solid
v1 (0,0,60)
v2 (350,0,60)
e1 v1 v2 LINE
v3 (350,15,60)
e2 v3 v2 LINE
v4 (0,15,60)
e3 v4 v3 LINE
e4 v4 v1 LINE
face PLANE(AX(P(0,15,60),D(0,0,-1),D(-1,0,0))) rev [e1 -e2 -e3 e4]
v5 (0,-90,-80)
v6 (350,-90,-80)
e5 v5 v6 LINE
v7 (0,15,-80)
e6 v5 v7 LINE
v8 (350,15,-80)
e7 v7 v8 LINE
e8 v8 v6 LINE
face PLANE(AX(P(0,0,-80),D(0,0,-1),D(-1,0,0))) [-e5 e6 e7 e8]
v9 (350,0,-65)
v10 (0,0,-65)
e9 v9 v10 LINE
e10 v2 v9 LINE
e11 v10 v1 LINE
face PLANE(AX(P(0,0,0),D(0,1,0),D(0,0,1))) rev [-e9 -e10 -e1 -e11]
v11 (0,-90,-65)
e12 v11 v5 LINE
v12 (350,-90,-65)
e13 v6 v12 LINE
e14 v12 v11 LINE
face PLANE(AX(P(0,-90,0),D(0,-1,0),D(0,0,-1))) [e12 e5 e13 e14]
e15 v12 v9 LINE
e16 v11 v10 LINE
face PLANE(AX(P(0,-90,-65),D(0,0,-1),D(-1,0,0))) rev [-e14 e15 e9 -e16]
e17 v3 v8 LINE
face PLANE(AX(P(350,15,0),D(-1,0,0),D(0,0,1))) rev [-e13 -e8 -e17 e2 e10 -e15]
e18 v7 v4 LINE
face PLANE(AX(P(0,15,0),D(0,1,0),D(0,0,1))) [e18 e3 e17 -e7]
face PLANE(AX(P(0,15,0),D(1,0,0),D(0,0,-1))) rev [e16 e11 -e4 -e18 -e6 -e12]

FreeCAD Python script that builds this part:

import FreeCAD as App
import Part
import Sketcher

V = App.Vector
Q = App.Units.Quantity

doc = App.newDocument("Part")
body = doc.addObject("PartDesign::Body", "Body")

sketch1 = body.newObject("Sketcher::SketchObject", "Sketch")
sketch1.AttachmentSupport = (doc.getObject("XZ_Plane"), [""])
sketch1.MapMode = "FlatFace"
sketch1.addGeometry(Part.LineSegment(V(0, 0, 0), V(0, 60, 0)), False)
sketch1.addGeometry(Part.LineSegment(V(0, 60, 0), V(350, 60, 0)), False)
sketch1.addGeometry(Part.LineSegment(V(350, 60, 0), V(350, 0, 0)), False)
sketch1.addGeometry(Part.LineSegment(V(350, 0, 0), V(0, 0, 0)), False)
sketch1.addConstraint(Sketcher.Constraint("Coincident", 0, 2, 1, 1))
sketch1.addConstraint(Sketcher.Constraint("Coincident", 1, 2, 2, 1))
sketch1.addConstraint(Sketcher.Constraint("Coincident", 2, 2, 3, 1))
sketch1.addConstraint(Sketcher.Constraint("Coincident", 3, 2, 0, 1))
sketch1.addConstraint(Sketcher.Constraint("Vertical", 0))
sketch1.addConstraint(Sketcher.Constraint("Horizontal", 1))
sketch1.addConstraint(Sketcher.Constraint("Vertical", 2))
sketch1.addConstraint(Sketcher.Constraint("Horizontal", 3))
sketch1.addConstraint(Sketcher.Constraint("Coincident", 3, 2, -1, 1))
sketch1.addConstraint(Sketcher.Constraint("DistanceX", 1, 1, 1, 2, Q("350 mm")))
sketch1.addConstraint(Sketcher.Constraint("DistanceY", 0, 1, 0, 2, Q("60 mm")))
pad1 = body.newObject("PartDesign::Pad", "Pad")
pad1.Profile = sketch1
pad1.Length = 15
pad1.Reversed = True

sketch2 = body.newObject("Sketcher::SketchObject", "Sketch001")
sketch2.AttachmentSupport = (doc.getObject("XY_Plane"), [""])
sketch2.MapMode = "FlatFace"
sketch2.addGeometry(Part.LineSegment(V(350, 15, 0), V(350, 0, 0)), False)
sketch2.addGeometry(Part.LineSegment(V(350, 0, 0), V(0, 0, 0)), False)
sketch2.addGeometry(Part.LineSegment(V(0, 0, 0), V(0, 15, 0)), False)
sketch2.addGeometry(Part.LineSegment(V(0, 15, 0), V(350, 15, 0)), False)
sketch2.addConstraint(Sketcher.Constraint("Coincident", 0, 2, 1, 1))
sketch2.addConstraint(Sketcher.Constraint("Coincident", 1, 2, 2, 1))
sketch2.addConstraint(Sketcher.Constraint("Coincident", 2, 2, 3, 1))
sketch2.addConstraint(Sketcher.Constraint("Coincident", 3, 2, 0, 1))
sketch2.addConstraint(Sketcher.Constraint("Vertical", 0))
sketch2.addConstraint(Sketcher.Constraint("Horizontal", 1))
sketch2.addConstraint(Sketcher.Constraint("Vertical", 2))
sketch2.addConstraint(Sketcher.Constraint("Horizontal", 3))
sketch2.addConstraint(Sketcher.Constraint("Coincident", 1, 2, -1, 1))
sketch2.addConstraint(Sketcher.Constraint("DistanceX", 1, 2, 1, 1, Q("350 mm")))
sketch2.addConstraint(Sketcher.Constraint("DistanceY", 0, 2, 0, 1, Q("15 mm")))
pad2 = body.newObject("PartDesign::Pad", "Pad001")
pad2.Profile = sketch2
pad2.Length = 80
pad2.Reversed = True

sketch3 = body.newObject("Sketcher::SketchObject", "Sketch002")
sketch3.AttachmentSupport = (doc.getObject("XZ_Plane"), [""])
sketch3.MapMode = "FlatFace"
sketch3.addGeometry(Part.LineSegment(V(0, -65, 0), V(0, -80, 0)), False)
sketch3.addGeometry(Part.LineSegment(V(0, -80, 0), V(350, -80, 0)), False)
sketch3.addGeometry(Part.LineSegment(V(350, -80, 0), V(350, -65, 0)), False)
sketch3.addGeometry(Part.LineSegment(V(350, -65, 0), V(0, -65, 0)), False)
sketch3.addConstraint(Sketcher.Constraint("Coincident", 0, 2, 1, 1))
sketch3.addConstraint(Sketcher.Constraint("Coincident", 1, 2, 2, 1))
sketch3.addConstraint(Sketcher.Constraint("Coincident", 2, 2, 3, 1))
sketch3.addConstraint(Sketcher.Constraint("Coincident", 3, 2, 0, 1))
sketch3.addConstraint(Sketcher.Constraint("Vertical", 0))
sketch3.addConstraint(Sketcher.Constraint("Horizontal", 1))
sketch3.addConstraint(Sketcher.Constraint("Vertical", 2))
sketch3.addConstraint(Sketcher.Constraint("Horizontal", 3))
sketch3.addConstraint(Sketcher.Constraint("PointOnObject", 0, 2, -2))
sketch3.addConstraint(Sketcher.Constraint("DistanceX", 1, 1, 1, 2, Q("350 mm")))
sketch3.addConstraint(Sketcher.Constraint("DistanceY", 0, 2, 0, 1, Q("15 mm")))
sketch3.addConstraint(Sketcher.Constraint("DistanceY", 0, 2, -1, 1, Q("80 mm")))
pad3 = body.newObject("PartDesign::Pad", "Pad002")
pad3.Profile = sketch3
pad3.Length = 90

doc.recompute()
